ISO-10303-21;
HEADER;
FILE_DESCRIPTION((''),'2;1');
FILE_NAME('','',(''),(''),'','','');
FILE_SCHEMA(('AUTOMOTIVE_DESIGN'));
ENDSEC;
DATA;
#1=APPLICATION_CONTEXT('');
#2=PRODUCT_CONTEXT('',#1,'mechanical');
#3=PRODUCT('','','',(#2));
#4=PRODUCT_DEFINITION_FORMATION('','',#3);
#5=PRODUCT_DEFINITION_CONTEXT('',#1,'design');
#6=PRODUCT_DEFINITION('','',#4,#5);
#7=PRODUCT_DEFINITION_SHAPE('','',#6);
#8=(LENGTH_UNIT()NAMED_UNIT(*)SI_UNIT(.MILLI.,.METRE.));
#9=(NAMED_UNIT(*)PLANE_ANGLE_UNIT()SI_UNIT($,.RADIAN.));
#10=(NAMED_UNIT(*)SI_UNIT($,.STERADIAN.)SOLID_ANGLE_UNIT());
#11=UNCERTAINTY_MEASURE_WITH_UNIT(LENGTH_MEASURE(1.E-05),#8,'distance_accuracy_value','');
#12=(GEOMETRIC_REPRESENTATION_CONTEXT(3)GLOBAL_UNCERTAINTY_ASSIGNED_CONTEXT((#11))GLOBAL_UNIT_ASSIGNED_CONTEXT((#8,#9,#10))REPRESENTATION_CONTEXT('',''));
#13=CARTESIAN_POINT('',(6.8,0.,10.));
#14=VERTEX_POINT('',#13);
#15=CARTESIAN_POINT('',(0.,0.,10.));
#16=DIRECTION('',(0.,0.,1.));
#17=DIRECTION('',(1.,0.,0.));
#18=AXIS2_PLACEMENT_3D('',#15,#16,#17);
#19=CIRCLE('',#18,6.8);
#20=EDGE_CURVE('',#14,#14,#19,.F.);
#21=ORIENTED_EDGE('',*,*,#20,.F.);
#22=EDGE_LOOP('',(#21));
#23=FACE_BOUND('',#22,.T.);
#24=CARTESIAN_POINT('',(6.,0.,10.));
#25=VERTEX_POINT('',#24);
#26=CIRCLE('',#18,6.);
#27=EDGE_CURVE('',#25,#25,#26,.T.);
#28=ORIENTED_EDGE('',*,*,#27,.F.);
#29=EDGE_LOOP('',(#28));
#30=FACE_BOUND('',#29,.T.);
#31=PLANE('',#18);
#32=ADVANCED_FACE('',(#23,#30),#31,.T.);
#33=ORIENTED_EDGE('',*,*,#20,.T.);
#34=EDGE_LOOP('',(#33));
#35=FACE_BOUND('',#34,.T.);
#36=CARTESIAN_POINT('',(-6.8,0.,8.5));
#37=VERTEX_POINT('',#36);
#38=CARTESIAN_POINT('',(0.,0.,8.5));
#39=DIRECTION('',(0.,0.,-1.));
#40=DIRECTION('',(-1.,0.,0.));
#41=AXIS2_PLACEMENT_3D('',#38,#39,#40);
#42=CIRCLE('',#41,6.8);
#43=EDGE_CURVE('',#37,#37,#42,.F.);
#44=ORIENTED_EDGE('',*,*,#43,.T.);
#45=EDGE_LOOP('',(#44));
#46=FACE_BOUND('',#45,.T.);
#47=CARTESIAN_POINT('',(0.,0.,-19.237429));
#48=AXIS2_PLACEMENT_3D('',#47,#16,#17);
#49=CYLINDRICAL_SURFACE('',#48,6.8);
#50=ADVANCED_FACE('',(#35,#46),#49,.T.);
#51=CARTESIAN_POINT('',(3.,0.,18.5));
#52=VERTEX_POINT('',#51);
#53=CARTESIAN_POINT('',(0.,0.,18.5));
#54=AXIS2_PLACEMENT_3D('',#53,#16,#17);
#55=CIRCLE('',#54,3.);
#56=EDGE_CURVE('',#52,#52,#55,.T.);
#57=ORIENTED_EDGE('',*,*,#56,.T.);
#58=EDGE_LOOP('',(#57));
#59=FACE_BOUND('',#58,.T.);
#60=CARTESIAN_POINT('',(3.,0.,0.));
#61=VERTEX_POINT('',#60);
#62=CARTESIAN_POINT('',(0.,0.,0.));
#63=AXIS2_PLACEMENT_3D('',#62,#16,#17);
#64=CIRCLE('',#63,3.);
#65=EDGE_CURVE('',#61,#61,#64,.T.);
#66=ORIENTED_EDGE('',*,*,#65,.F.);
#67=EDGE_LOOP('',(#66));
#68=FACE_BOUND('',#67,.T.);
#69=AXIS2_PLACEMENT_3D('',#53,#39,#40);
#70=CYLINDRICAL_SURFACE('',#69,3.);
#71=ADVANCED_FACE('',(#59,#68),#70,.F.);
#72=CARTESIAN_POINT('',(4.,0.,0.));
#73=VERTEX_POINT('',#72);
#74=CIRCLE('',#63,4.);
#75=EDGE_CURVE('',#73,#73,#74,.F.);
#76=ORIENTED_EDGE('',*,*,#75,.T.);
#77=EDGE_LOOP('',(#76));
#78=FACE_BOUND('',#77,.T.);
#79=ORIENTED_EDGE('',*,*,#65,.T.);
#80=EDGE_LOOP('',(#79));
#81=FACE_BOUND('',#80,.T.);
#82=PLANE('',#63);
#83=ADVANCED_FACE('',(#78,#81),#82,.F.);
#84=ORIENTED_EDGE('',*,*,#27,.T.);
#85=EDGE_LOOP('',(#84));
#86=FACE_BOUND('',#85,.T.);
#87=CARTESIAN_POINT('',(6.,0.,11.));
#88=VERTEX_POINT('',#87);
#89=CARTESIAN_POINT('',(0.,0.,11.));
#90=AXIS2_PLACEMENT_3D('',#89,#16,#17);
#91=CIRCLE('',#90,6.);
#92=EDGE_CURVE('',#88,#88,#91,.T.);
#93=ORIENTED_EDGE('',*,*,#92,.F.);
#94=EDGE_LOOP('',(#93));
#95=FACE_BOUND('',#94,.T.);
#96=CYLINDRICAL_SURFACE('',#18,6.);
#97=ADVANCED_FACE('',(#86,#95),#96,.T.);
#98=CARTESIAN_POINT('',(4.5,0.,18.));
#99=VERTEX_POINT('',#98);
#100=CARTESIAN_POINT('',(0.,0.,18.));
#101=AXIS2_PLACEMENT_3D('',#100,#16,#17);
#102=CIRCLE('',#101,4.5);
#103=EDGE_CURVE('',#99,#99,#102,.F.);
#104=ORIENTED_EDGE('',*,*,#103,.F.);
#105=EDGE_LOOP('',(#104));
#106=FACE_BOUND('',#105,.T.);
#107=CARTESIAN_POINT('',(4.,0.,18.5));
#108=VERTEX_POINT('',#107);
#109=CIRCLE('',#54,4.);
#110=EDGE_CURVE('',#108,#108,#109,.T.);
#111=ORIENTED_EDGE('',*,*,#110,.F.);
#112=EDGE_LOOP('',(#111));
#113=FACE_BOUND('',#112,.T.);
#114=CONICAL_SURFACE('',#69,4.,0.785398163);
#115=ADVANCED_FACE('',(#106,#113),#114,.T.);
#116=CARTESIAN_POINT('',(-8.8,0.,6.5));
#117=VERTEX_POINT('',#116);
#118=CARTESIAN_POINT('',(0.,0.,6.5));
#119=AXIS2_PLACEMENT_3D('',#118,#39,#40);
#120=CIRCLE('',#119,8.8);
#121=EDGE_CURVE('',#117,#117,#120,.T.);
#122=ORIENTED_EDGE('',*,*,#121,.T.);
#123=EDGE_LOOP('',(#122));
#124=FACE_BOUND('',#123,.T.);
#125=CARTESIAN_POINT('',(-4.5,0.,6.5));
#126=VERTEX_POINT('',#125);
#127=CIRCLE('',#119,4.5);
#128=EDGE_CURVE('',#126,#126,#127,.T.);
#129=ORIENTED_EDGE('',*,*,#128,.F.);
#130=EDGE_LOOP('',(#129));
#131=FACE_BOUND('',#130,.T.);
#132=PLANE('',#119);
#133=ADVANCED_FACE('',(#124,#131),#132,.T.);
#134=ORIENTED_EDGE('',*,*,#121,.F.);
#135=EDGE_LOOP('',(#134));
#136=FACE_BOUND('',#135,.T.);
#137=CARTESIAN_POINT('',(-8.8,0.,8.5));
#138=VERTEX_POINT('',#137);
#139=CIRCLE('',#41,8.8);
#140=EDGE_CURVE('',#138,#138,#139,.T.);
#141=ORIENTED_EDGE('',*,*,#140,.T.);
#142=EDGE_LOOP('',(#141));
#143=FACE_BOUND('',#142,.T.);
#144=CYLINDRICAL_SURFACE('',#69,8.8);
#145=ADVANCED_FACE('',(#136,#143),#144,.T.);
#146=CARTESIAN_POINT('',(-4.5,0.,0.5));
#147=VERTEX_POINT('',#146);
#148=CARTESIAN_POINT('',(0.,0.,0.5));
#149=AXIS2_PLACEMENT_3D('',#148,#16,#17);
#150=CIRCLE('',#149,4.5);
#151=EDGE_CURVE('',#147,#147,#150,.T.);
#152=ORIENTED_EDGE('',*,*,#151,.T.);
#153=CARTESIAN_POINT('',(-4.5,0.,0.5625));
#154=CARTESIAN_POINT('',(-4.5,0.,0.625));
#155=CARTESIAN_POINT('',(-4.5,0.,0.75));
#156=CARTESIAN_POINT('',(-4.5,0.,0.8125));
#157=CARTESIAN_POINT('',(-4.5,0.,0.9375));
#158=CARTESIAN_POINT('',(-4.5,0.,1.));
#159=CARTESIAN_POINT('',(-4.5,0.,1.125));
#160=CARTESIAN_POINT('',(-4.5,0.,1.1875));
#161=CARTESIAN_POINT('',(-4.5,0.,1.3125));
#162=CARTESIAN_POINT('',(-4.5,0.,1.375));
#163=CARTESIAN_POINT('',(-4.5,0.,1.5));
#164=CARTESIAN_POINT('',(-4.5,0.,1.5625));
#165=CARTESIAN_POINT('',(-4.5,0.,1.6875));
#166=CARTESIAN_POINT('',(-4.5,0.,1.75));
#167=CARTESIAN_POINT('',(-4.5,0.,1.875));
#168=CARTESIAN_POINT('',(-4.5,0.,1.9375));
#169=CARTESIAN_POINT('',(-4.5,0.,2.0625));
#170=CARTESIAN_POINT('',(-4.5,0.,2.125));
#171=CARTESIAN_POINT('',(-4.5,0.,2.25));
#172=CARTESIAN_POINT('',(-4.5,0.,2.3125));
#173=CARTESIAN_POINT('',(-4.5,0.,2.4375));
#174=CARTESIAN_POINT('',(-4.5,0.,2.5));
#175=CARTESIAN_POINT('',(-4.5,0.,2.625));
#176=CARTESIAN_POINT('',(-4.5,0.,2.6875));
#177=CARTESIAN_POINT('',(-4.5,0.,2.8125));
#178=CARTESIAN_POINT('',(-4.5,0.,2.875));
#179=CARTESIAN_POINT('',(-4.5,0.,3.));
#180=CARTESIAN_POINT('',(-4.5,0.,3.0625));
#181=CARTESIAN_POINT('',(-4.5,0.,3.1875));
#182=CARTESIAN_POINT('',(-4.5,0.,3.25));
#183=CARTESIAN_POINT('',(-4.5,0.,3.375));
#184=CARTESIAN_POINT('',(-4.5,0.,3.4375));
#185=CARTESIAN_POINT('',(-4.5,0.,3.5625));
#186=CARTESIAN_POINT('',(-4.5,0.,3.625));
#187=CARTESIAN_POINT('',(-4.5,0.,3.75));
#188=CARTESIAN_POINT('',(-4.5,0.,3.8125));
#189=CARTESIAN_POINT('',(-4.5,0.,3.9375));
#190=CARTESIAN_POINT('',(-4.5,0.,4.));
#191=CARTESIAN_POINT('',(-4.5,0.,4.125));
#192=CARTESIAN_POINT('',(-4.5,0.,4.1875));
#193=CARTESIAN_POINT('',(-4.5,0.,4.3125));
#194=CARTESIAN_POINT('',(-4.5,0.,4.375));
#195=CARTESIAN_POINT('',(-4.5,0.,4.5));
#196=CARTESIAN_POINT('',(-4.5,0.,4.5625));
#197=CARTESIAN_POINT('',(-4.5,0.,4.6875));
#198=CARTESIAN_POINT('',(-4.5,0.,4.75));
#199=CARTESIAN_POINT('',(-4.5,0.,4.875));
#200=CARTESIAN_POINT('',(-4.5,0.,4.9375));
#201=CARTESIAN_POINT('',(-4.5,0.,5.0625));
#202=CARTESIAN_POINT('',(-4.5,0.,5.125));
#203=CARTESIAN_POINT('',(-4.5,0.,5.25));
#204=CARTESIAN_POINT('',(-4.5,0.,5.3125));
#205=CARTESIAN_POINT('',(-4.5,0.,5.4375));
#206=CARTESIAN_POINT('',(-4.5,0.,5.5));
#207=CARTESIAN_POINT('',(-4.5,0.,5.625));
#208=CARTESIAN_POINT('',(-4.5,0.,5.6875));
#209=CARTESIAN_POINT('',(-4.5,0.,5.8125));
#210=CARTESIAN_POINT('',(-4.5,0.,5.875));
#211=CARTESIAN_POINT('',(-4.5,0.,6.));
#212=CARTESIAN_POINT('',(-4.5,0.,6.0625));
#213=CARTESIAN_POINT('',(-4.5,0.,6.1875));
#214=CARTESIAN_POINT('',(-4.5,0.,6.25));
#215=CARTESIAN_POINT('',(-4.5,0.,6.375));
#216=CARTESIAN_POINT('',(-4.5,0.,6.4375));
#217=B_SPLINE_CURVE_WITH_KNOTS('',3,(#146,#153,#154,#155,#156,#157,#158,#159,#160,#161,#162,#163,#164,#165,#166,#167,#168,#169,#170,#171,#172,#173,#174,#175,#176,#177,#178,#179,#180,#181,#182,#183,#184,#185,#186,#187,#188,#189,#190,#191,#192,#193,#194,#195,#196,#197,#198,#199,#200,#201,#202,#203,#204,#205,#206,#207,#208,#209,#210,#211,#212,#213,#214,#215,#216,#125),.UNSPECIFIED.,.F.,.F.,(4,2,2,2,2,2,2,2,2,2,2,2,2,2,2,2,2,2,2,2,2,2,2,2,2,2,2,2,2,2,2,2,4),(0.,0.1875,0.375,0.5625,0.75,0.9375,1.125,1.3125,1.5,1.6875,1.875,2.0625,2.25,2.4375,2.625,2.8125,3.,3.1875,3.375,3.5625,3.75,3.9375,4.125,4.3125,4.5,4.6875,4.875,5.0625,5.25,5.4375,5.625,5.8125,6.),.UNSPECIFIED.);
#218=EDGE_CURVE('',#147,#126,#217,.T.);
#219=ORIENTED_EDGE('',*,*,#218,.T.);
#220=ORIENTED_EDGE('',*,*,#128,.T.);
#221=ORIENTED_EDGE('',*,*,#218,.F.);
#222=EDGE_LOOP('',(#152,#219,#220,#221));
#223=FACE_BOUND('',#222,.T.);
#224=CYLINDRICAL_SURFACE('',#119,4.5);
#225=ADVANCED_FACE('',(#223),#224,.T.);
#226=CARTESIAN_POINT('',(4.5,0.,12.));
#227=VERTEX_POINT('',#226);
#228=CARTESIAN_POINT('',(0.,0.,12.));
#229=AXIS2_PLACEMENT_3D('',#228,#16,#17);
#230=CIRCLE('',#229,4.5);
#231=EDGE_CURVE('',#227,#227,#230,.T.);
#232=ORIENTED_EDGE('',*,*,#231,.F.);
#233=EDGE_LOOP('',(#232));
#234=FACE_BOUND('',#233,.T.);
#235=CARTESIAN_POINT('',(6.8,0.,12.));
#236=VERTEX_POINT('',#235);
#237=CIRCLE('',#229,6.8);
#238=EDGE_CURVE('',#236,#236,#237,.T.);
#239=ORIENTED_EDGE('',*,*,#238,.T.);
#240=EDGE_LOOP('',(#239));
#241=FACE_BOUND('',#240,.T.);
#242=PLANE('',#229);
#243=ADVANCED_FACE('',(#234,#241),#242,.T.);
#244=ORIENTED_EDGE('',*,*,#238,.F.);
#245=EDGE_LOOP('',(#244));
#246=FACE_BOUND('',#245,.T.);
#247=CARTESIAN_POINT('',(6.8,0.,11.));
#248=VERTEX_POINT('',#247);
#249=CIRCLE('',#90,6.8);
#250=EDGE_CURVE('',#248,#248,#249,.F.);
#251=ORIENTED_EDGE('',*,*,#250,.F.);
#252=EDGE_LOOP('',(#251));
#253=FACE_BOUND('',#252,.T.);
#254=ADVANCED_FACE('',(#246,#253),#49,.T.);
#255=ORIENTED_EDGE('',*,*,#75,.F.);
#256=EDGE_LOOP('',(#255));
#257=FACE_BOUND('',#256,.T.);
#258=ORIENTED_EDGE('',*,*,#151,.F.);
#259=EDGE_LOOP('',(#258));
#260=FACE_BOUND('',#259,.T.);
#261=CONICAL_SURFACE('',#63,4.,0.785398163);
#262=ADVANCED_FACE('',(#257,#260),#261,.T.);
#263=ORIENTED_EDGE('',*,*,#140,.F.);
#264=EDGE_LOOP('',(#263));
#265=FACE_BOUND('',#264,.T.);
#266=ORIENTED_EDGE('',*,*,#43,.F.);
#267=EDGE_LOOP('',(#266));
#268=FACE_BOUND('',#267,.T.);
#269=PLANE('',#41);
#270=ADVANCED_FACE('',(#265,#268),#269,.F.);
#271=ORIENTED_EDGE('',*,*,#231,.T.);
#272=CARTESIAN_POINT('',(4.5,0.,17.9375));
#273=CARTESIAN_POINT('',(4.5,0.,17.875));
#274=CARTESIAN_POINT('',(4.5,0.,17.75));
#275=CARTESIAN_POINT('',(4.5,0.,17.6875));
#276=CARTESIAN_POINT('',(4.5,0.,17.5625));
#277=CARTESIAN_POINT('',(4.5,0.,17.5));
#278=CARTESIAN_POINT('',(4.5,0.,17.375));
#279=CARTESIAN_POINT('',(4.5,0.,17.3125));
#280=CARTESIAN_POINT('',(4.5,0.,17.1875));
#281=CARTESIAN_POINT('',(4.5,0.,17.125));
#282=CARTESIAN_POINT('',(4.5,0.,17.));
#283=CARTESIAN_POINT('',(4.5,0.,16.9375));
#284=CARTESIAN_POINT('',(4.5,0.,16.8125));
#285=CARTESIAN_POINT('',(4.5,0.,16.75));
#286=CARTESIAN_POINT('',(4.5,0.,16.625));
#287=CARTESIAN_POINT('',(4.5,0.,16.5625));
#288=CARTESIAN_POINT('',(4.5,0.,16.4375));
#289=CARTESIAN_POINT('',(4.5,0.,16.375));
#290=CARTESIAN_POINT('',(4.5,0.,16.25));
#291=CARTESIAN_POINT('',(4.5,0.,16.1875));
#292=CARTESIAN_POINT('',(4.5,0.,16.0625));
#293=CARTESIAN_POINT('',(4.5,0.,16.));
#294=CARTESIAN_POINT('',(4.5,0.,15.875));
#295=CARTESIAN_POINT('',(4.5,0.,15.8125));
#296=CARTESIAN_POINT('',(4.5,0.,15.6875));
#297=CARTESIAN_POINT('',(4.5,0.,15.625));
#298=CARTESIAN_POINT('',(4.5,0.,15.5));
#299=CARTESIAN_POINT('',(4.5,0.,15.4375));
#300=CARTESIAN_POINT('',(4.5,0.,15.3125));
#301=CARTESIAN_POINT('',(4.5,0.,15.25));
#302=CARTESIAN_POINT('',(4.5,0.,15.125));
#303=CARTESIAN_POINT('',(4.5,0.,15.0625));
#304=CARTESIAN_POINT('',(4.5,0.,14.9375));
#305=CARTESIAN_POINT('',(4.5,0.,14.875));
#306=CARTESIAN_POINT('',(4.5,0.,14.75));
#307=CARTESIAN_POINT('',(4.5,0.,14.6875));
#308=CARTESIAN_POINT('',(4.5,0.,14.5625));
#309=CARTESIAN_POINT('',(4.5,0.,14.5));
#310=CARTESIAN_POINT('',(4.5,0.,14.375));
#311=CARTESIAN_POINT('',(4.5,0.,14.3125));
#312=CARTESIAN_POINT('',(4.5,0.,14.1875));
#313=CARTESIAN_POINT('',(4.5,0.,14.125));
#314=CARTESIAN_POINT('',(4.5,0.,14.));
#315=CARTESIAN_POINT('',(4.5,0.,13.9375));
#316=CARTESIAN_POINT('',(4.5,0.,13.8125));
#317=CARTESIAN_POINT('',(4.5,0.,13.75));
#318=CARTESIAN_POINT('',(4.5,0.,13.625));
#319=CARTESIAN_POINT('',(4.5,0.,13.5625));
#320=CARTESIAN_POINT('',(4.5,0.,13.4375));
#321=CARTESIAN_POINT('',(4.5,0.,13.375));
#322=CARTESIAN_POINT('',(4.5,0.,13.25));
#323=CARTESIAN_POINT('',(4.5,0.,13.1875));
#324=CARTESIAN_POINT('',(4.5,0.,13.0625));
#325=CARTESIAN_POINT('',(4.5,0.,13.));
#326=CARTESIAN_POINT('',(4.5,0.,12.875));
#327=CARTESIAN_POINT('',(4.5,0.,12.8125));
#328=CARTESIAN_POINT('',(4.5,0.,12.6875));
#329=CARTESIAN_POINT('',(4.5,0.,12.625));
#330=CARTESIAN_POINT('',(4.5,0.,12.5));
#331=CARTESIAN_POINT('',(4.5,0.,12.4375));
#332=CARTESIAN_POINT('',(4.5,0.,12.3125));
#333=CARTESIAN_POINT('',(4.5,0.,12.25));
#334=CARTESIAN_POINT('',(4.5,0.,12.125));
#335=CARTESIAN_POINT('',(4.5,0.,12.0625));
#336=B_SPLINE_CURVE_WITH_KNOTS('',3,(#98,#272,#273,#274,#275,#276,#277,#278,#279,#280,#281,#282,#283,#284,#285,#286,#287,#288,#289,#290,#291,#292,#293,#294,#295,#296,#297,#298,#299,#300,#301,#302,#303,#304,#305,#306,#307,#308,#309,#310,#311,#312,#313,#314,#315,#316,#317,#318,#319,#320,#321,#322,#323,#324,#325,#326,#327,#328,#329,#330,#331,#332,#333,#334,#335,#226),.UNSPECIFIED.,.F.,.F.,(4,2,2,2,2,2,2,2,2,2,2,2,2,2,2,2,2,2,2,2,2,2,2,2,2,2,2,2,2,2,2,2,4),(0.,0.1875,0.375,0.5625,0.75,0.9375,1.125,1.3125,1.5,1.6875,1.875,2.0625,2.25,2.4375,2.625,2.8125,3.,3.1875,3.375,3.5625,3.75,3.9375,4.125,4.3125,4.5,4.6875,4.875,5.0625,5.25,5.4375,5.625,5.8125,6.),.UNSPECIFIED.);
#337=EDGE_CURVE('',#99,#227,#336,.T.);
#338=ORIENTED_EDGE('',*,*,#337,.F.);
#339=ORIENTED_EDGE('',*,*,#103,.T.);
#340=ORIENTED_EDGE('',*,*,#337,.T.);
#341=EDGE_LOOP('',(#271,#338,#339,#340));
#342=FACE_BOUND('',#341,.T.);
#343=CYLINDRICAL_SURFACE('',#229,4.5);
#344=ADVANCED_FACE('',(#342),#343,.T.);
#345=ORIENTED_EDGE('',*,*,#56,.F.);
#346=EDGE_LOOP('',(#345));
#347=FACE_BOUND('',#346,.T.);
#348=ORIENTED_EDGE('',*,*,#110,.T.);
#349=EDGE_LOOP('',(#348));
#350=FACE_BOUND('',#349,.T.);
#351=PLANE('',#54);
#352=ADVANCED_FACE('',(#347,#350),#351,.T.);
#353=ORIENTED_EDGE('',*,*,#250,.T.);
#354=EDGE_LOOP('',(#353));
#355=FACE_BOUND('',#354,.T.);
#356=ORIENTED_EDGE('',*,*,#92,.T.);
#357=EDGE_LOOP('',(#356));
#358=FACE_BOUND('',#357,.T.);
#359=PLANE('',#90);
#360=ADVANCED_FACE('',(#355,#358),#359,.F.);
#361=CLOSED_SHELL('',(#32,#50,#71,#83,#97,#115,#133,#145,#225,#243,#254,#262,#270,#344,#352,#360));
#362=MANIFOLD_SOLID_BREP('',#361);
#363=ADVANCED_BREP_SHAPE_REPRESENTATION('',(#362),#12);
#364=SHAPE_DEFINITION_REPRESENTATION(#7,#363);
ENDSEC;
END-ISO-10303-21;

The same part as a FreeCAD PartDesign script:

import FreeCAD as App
import Part
import Sketcher
from FreeCAD import Vector


def edges_at(feature, points):
    """Names of the edges that pass closest to the given points."""
    edges = feature.Shape.Edges
    near = lambda p: min(range(len(edges)), key=lambda i: edges[i].distToShape(Part.Vertex(*p))[0])
    return sorted({f"Edge{near(p) + 1}" for p in points})


def add_polygon(sketch, points):
    """Adds a closed chain of lines whose ends are joined by coincident constraints."""
    first, n = sketch.GeometryCount, len(points)
    for a, b in zip(points, points[1:] + points[:1]):
        sketch.addGeometry(Part.LineSegment(App.Vector(*a, 0), App.Vector(*b, 0)), False)
    for i in range(n):
        sketch.addConstraint(Sketcher.Constraint("Coincident", first + i, 2, first + (i + 1) % n, 1))

doc = App.newDocument("Part")
body = doc.addObject("PartDesign::Body", "Body")

# Sketch on XY plane
sketch1 = body.newObject("Sketcher::SketchObject", "Sketch")
sketch1.AttachmentSupport = (doc.getObject("XY_Plane"), [""])
sketch1.MapMode = "FlatFace"
sketch1.addGeometry(Part.Circle(Vector(0, 0, 0), Vector(0, 0, 1), 8.8), False)
sketch1.addGeometry(Part.Circle(Vector(0, 0, 0), Vector(0, 0, 1), 3), False)
sketch1.addConstraint(Sketcher.Constraint("Coincident", 0, 3, -1, 1))
sketch1.addConstraint(Sketcher.Constraint("Coincident", 1, 3, -1, 1))
sketch1.addConstraint(Sketcher.Constraint("Diameter", 1, 6.0))
sketch1.addConstraint(Sketcher.Constraint("Diameter", 0, 17.6))
pad1 = body.newObject("PartDesign::Pad", "Pad")
pad1.Profile = sketch1
pad1.Length = 18.5

# Sketch on XY plane
sketch2 = body.newObject("Sketcher::SketchObject", "Sketch001")
sketch2.AttachmentSupport = (doc.getObject("XY_Plane"), [""])
sketch2.MapMode = "FlatFace"
sketch2.AttachmentOffset = App.Placement(Vector(0, 0, 18.5), App.Rotation())
add_polygon(sketch2, [(-12.9, 12.9), (-12.9, -12.9), (12.9, -12.9), (12.9, 12.9)])  # lines 0-3
sketch2.addGeometry(Part.Circle(Vector(0, 0, 0), Vector(0, 0, 1), 4.5), False)  # 4
sketch2.addConstraint(Sketcher.Constraint("Vertical", 0))
sketch2.addConstraint(Sketcher.Constraint("Horizontal", 1))
sketch2.addConstraint(Sketcher.Constraint("Vertical", 2))
sketch2.addConstraint(Sketcher.Constraint("Horizontal", 3))
sketch2.addConstraint(Sketcher.Constraint("Coincident", 4, 3, -1, 1))
sketch2.addConstraint(Sketcher.Constraint("Symmetric", 0, 2, 2, 2, -1, 1))
sketch2.addConstraint(Sketcher.Constraint("Equal", 3, 0))
sketch2.addConstraint(Sketcher.Constraint("Diameter", 4, 9.0))
sketch2.addConstraint(Sketcher.Constraint("DistanceX", 1, 1, 1, 2, 25.802))
pocket1 = body.newObject("PartDesign::Pocket", "Pocket")
pocket1.Profile = sketch2
pocket1.Length = 6.5

# Sketch on XY plane
sketch3 = body.newObject("Sketcher::SketchObject", "Sketch002")
sketch3.AttachmentSupport = (doc.getObject("XY_Plane"), [""])
sketch3.MapMode = "FlatFace"
add_polygon(sketch3, [(12.9, 12.9), (12.9, -12.9), (-12.9, -12.9), (-12.9, 12.9)])  # lines 0-3
sketch3.addGeometry(Part.Circle(Vector(0, 0, 0), Vector(0, 0, 1), 4.5), False)  # 4
sketch3.addConstraint(Sketcher.Constraint("Vertical", 0))
sketch3.addConstraint(Sketcher.Constraint("Horizontal", 1))
sketch3.addConstraint(Sketcher.Constraint("Vertical", 2))
sketch3.addConstraint(Sketcher.Constraint("Horizontal", 3))
sketch3.addConstraint(Sketcher.Constraint("Coincident", 4, 3, -1, 1))
sketch3.addConstraint(Sketcher.Constraint("Symmetric", 0, 2, 2, 2, -1, 1))
sketch3.addConstraint(Sketcher.Constraint("Equal", 3, 0))
sketch3.addConstraint(Sketcher.Constraint("Diameter", 4, 9.0))
sketch3.addConstraint(Sketcher.Constraint("DistanceX", 1, 2, 1, 1, 25.802))
pocket2 = body.newObject("PartDesign::Pocket", "Pocket001")
pocket2.Profile = sketch3
pocket2.Length = 6.5
pocket2.Reversed = True

# Sketch on XY plane
sketch4 = body.newObject("Sketcher::SketchObject", "Sketch003")
sketch4.AttachmentSupport = (doc.getObject("XY_Plane"), [""])
sketch4.MapMode = "FlatFace"
sketch4.AttachmentOffset = App.Placement(Vector(0, 0, 12), App.Rotation())
add_polygon(sketch4, [(-13, 13), (-13, -13), (13, -13), (13, 13)])  # lines 0-3
sketch4.addGeometry(Part.Circle(Vector(0, 0, 0), Vector(0, 0, 1), 7), False)  # 4
sketch4.addConstraint(Sketcher.Constraint("Vertical", 0))
sketch4.addConstraint(Sketcher.Constraint("Horizontal", 1))
sketch4.addConstraint(Sketcher.Constraint("Vertical", 2))
sketch4.addConstraint(Sketcher.Constraint("Horizontal", 3))
sketch4.addConstraint(Sketcher.Constraint("Coincident", 4, 3, -1, 1))
sketch4.addConstraint(Sketcher.Constraint("Symmetric", 0, 2, 2, 2, -1, 1))
sketch4.addConstraint(Sketcher.Constraint("Equal", 3, 0))
sketch4.addConstraint(Sketcher.Constraint("Diameter", 4, 13.6))
sketch4.addConstraint(Sketcher.Constraint("DistanceX", 1, 1, 1, 2, 25.802))
pocket3 = body.newObject("PartDesign::Pocket", "Pocket002")
pocket3.Profile = sketch4
pocket3.Length = 3.5

# Sketch on XY plane
sketch5 = body.newObject("Sketcher::SketchObject", "Sketch004")
sketch5.AttachmentSupport = (doc.getObject("XY_Plane"), [""])
sketch5.MapMode = "FlatFace"
sketch5.AttachmentOffset = App.Placement(Vector(0, 0, 11), App.Rotation())
add_polygon(sketch5, [(-13, 13), (-13, -13), (13, -13), (13, 13)])  # lines 0-3
sketch5.addGeometry(Part.Circle(Vector(0, 0, 0), Vector(0, 0, 1), 6), False)  # 4
sketch5.addConstraint(Sketcher.Constraint("Vertical", 0))
sketch5.addConstraint(Sketcher.Constraint("Horizontal", 1))
sketch5.addConstraint(Sketcher.Constraint("Vertical", 2))
sketch5.addConstraint(Sketcher.Constraint("Horizontal", 3))
sketch5.addConstraint(Sketcher.Constraint("Coincident", 4, 3, -1, 1))
sketch5.addConstraint(Sketcher.Constraint("Symmetric", 0, 2, 2, 2, -1, 1))
sketch5.addConstraint(Sketcher.Constraint("Equal", 3, 0))
sketch5.addConstraint(Sketcher.Constraint("Diameter", 4, 12.0))
sketch5.addConstraint(Sketcher.Constraint("DistanceX", 1, 1, 1, 2, 25.802))
pocket4 = body.newObject("PartDesign::Pocket", "Pocket003")
pocket4.Profile = sketch5
pocket4.Length = 1
doc.recompute()

chamfer = body.newObject("PartDesign::Chamfer", "Chamfer")
chamfer.Base = (pocket4, edges_at(pocket4, [(-4.5, 0, 18.5), (-4.5, 0, 0)]))
chamfer.Size = 0.5

doc.recompute()
